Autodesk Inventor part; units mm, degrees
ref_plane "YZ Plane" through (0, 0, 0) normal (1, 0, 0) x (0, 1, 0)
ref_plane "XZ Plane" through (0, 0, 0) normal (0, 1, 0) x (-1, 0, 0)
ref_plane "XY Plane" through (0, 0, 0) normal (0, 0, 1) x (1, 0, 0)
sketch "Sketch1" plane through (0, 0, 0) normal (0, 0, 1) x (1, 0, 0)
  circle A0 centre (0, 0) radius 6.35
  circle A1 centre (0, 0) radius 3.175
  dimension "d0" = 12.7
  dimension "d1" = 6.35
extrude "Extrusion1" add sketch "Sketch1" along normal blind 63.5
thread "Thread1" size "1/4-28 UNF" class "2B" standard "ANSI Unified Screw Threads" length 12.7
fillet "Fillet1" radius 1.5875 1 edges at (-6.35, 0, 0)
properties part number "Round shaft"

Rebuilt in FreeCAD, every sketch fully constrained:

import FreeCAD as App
import Part
import Sketcher
Q = App.Units.Quantity


def edges_at(feature, points):
    """Names of the edges that pass closest to the given points."""
    edges = feature.Shape.Edges
    near = lambda p: min(range(len(edges)), key=lambda i: edges[i].distToShape(Part.Vertex(*p))[0])
    return sorted({f"Edge{near(p) + 1}" for p in points})

doc = App.newDocument("Part")
body = doc.addObject("PartDesign::Body", "Body")

# Sketch on XY plane
sketch1 = doc.addObject("Sketcher::SketchObject", "Sketch")
body.addObject(sketch1)
sketch1.AttachmentSupport = (doc.XY_Plane, [""])
sketch1.MapMode = "FlatFace"
sketch1.addGeometry(Part.Circle(App.Vector(0, 0, 0), App.Vector(0, 0, 1), 6.3), False)
sketch1.addGeometry(Part.Circle(App.Vector(0, 0, 0), App.Vector(0, 0, 1), 3.2), False)
sketch1.addConstraint(Sketcher.Constraint("Coincident", 0, 3, -1, 1))
sketch1.addConstraint(Sketcher.Constraint("Coincident", 1, 3, -1, 1))
sketch1.addConstraint(Sketcher.Constraint("Diameter", 0, Q("0.5 in")))
sketch1.addConstraint(Sketcher.Constraint("Diameter", 1, Q("0.25 in")))
pad1 = doc.addObject("PartDesign::Pad", "Pad")
body.addObject(pad1)
pad1.Profile = sketch1
pad1.Length = Q("2.5 in")
doc.recompute()

fillet = doc.addObject("PartDesign::Fillet", "Fillet")
body.addObject(fillet)
fillet.Base = (pad1, edges_at(pad1, [(-6.35, 0, 0)]))
fillet.Radius = Q("0.0625 in")

doc.recompute()
